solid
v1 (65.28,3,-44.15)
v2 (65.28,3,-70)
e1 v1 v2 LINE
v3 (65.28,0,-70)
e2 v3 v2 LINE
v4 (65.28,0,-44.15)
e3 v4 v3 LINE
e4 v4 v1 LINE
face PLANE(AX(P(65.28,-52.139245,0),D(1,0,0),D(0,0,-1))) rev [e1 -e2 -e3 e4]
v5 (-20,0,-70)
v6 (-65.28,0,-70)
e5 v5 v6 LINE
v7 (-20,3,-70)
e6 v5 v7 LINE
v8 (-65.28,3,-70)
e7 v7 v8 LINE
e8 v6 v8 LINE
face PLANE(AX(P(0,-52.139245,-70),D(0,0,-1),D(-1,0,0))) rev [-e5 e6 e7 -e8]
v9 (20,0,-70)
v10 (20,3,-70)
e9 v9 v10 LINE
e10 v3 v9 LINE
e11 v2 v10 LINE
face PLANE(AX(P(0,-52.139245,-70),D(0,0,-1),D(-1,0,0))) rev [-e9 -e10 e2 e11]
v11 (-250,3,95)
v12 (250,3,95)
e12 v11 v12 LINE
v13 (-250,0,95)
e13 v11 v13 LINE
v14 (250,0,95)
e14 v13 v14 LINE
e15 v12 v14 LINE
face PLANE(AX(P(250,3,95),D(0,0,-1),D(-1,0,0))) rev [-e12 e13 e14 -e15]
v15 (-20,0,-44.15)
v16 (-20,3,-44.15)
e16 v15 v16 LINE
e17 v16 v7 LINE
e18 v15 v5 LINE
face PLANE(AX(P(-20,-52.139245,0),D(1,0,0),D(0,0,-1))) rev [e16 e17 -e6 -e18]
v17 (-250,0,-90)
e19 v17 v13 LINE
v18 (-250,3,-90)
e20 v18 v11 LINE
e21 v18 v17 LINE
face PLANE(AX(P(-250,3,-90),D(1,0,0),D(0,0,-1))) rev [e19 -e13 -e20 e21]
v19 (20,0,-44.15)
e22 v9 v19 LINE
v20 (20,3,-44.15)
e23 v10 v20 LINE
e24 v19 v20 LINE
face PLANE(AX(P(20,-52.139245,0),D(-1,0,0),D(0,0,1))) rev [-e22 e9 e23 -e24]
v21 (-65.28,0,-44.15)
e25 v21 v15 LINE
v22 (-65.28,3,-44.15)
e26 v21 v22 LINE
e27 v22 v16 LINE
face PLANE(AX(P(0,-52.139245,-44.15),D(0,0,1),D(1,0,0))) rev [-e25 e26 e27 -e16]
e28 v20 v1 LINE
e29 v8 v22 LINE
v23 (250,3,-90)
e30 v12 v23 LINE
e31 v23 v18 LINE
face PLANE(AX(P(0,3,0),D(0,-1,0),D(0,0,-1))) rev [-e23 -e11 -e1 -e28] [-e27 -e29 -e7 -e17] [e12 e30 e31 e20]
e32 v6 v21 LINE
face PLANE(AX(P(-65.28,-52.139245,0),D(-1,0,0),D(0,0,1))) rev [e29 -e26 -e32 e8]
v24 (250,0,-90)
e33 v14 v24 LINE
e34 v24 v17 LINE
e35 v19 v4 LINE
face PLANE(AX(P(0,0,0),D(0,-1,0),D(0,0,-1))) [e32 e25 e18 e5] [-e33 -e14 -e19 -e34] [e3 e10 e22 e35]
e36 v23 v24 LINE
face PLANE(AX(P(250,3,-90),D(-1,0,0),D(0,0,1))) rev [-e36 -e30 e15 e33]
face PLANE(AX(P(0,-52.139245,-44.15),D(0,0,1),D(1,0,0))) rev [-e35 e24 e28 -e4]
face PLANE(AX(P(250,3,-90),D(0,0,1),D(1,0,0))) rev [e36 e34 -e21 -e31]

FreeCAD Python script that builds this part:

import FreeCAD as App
import Part
import Sketcher
Q = App.Units.Quantity


def add_polygon(sketch, points):
    """Adds a closed chain of lines whose ends are joined by coincident constraints."""
    first, n = sketch.GeometryCount, len(points)
    for a, b in zip(points, points[1:] + points[:1]):
        sketch.addGeometry(Part.LineSegment(App.Vector(*a, 0), App.Vector(*b, 0)), False)
    for i in range(n):
        sketch.addConstraint(Sketcher.Constraint("Coincident", first + i, 2, first + (i + 1) % n, 1))

doc = App.newDocument("Part")
params = doc.addObject("Spreadsheet::Sheet", "Params")
for row, (alias, value) in enumerate([
    ("sketch1_width", "500 mm"),
    ("sketch1_height", "185 mm"),
    ("pad1_length", "3 mm"),
    ("sketch2_width", "45.28 mm"),
    ("sketch2_height", "25.85 mm"),
    ("pocket1_length", "3 mm"),
], start=1):
    params.set(f"A{row}", alias)
    params.set(f"B{row}", "=" + value)
    params.setAlias(f"B{row}", alias)

body = doc.addObject("PartDesign::Body", "Body")

# Sketch on XZ plane
sketch1 = body.newObject("Sketcher::SketchObject", "Sketch")
sketch1.AttachmentSupport = (doc.getObject("XZ_Plane"), [""])
sketch1.MapMode = "FlatFace"
add_polygon(sketch1, [(-250, -90), (-250, 95), (250, 95), (250, -90)])  # lines 0-3
sketch1.addConstraint(Sketcher.Constraint("Vertical", 0))
sketch1.addConstraint(Sketcher.Constraint("Horizontal", 1))
sketch1.addConstraint(Sketcher.Constraint("Vertical", 2))
sketch1.addConstraint(Sketcher.Constraint("Horizontal", 3))
sketch1.addConstraint(Sketcher.Constraint("DistanceX", 1, 1, 1, 2, Q("500 mm")))
sketch1.addConstraint(Sketcher.Constraint("DistanceY", 0, 1, 0, 2, Q("185 mm")))
sketch1.addConstraint(Sketcher.Constraint("DistanceX", 0, 2, -1, 1, Q("250 mm")))
sketch1.addConstraint(Sketcher.Constraint("DistanceY", -1, 1, 0, 2, Q("95 mm")))
sketch1.setExpression("Constraints[8]", "Params.sketch1_width")
sketch1.setExpression("Constraints[9]", "Params.sketch1_height")
pad1 = body.newObject("PartDesign::Pad", "Pad")
pad1.Profile = sketch1
pad1.setExpression("Length", "Params.pad1_length")
pad1.Reversed = True

# Sketch on XZ plane
sketch2 = body.newObject("Sketcher::SketchObject", "Sketch001")
sketch2.AttachmentSupport = (doc.getObject("XZ_Plane"), [""])
sketch2.MapMode = "FlatFace"
sketch2.AttachmentOffset = App.Placement(App.Vector(0, 0, -3), App.Rotation())
add_polygon(sketch2, [(-65, -70), (-65, -44), (-20, -44), (-20, -70)])  # lines 0-3
add_polygon(sketch2, [(20, -70), (20, -44), (65, -44), (65, -70)])  # lines 4-7
sketch2.addConstraint(Sketcher.Constraint("Vertical", 0))
sketch2.addConstraint(Sketcher.Constraint("Horizontal", 1))
sketch2.addConstraint(Sketcher.Constraint("Vertical", 2))
sketch2.addConstraint(Sketcher.Constraint("Horizontal", 3))
sketch2.addConstraint(Sketcher.Constraint("Vertical", 4))
sketch2.addConstraint(Sketcher.Constraint("Horizontal", 5))
sketch2.addConstraint(Sketcher.Constraint("Vertical", 6))
sketch2.addConstraint(Sketcher.Constraint("Horizontal", 7))
sketch2.addConstraint(Sketcher.Constraint("Symmetric", 1, 2, 4, 2, -2))
sketch2.addConstraint(Sketcher.Constraint("Symmetric", 3, 2, 6, 2, -2))
sketch2.addConstraint(Sketcher.Constraint("DistanceX", 1, 2, -1, 1, Q("20 mm")))
sketch2.addConstraint(Sketcher.Constraint("DistanceY", 2, 2, -1, 1, Q("70 mm")))
sketch2.addConstraint(Sketcher.Constraint("DistanceX", 1, 1, 1, 2, Q("45.28 mm")))
sketch2.addConstraint(Sketcher.Constraint("DistanceY", 0, 1, 0, 2, Q("25.85 mm")))
sketch2.setExpression("Constraints[20]", "Params.sketch2_width")
sketch2.setExpression("Constraints[21]", "Params.sketch2_height")
pocket1 = body.newObject("PartDesign::Pocket", "Pocket")
pocket1.Profile = sketch2
pocket1.setExpression("Length", "Params.pocket1_length")
pocket1.Reversed = True

doc.recompute()
